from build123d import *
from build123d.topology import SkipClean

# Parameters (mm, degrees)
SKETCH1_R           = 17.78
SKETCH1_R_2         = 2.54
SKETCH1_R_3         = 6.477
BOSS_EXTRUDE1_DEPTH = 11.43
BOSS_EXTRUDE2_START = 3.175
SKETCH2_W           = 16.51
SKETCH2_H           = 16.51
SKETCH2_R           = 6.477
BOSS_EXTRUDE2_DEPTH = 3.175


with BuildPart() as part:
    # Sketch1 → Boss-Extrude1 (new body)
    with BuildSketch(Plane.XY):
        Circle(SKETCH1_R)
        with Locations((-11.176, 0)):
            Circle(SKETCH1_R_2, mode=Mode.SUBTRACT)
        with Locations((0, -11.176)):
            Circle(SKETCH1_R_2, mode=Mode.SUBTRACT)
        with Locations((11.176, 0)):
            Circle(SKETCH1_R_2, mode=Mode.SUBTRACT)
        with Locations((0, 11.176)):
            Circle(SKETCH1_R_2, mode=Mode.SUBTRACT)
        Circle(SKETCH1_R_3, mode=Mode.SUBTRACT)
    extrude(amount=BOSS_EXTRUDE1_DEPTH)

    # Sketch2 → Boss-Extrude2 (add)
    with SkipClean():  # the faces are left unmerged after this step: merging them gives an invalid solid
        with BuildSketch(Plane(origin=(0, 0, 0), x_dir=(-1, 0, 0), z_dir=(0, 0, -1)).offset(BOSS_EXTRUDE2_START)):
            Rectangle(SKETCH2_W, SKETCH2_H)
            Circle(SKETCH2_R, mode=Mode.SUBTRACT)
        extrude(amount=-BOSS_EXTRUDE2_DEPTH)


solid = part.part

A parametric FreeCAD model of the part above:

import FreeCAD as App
import Part
import Sketcher
Q = App.Units.Quantity

doc = App.newDocument("Part")
body = doc.addObject("PartDesign::Body", "Body")

sketch1 = body.newObject("Sketcher::SketchObject", "Sketch")
sketch1.AttachmentSupport = (doc.getObject("XY_Plane"), [""])
sketch1.MapMode = "FlatFace"
sketch1.addGeometry([
    Part.Circle(App.Vector(0, 0, 0), App.Vector(0, 0, 1), 17.8),
    Part.Circle(App.Vector(0, -11.2, 0), App.Vector(0, 0, 1), 2.5),
    Part.Circle(App.Vector(-11.2, 0, 0), App.Vector(0, 0, 1), 2.5),
    Part.Circle(App.Vector(0, 0, 0), App.Vector(0, 0, 1), 6.5),
    Part.Circle(App.Vector(11.2, 0, 0), App.Vector(0, 0, 1), 2.5),
    Part.Circle(App.Vector(0, 11.2, 0), App.Vector(0, 0, 1), 2.5),
], False)
sketch1.addConstraint([
    Sketcher.Constraint("Coincident", 0, 3, -1, 1),
    Sketcher.Constraint("Coincident", 3, 3, -1, 1),
    Sketcher.Constraint("Equal", 1, 2),
    Sketcher.Constraint("Equal", 2, 4),
    Sketcher.Constraint("Equal", 4, 5),
    Sketcher.Constraint("Symmetric", 2, 3, 4, 3, -1, 1),
    Sketcher.Constraint("Symmetric", 1, 3, 5, 3, -1, 1),
    Sketcher.Constraint("PointOnObject", 1, 3, -2),
    Sketcher.Constraint("PointOnObject", 2, 3, -1),
    Sketcher.Constraint("Diameter", 0, Q("1.4 in")),
    Sketcher.Constraint("Diameter", 1, Q("0.2 in")),
    Sketcher.Constraint("Diameter", 3, Q("0.51 in")),
    Sketcher.Constraint("DistanceY", 1, 3, -1, 1, Q("0.44 in")),
    Sketcher.Constraint("DistanceX", 2, 3, -1, 1, Q("0.44 in")),
])
pad1 = body.newObject("PartDesign::Pad", "Pad")
pad1.Profile = sketch1
pad1.Length = Q("0.45 in")

sketch2 = body.newObject("Sketcher::SketchObject", "Sketch001")
sketch2.AttachmentSupport = (doc.getObject("XY_Plane"), [""])
sketch2.MapMode = "FlatFace"
sketch2.AttachmentOffset = App.Placement(App.Vector(0, 0, -0.125 * 25.4), App.Rotation())
sketch2.addGeometry([
    Part.LineSegment(App.Vector(8, 8, 0), App.Vector(8, -8, 0)),
    Part.LineSegment(App.Vector(8, -8, 0), App.Vector(-8, -8, 0)),
    Part.LineSegment(App.Vector(-8, -8, 0), App.Vector(-8, 8, 0)),
    Part.LineSegment(App.Vector(-8, 8, 0), App.Vector(8, 8, 0)),
    Part.Circle(App.Vector(0, 0, 0), App.Vector(0, 0, 1), 6),
], False)
sketch2.addConstraint([
    Sketcher.Constraint("Coincident", 0, 2, 1, 1),
    Sketcher.Constraint("Coincident", 1, 2, 2, 1),
    Sketcher.Constraint("Coincident", 2, 2, 3, 1),
    Sketcher.Constraint("Coincident", 3, 2, 0, 1),
    Sketcher.Constraint("Vertical", 0),
    Sketcher.Constraint("Horizontal", 1),
    Sketcher.Constraint("Vertical", 2),
    Sketcher.Constraint("Horizontal", 3),
    Sketcher.Constraint("Coincident", 4, 3, -1, 1),
    Sketcher.Constraint("Symmetric", 0, 2, 2, 2, -1, 1),
    Sketcher.Constraint("Equal", 3, 0),
    Sketcher.Constraint("Diameter", 4, Q("0.51 in")),
    Sketcher.Constraint("DistanceX", 1, 2, 1, 1, Q("0.65 in")),
])
pad2 = body.newObject("PartDesign::Pad", "Pad001")
pad2.Profile = sketch2
pad2.Length = Q("0.125 in")

doc.recompute()
